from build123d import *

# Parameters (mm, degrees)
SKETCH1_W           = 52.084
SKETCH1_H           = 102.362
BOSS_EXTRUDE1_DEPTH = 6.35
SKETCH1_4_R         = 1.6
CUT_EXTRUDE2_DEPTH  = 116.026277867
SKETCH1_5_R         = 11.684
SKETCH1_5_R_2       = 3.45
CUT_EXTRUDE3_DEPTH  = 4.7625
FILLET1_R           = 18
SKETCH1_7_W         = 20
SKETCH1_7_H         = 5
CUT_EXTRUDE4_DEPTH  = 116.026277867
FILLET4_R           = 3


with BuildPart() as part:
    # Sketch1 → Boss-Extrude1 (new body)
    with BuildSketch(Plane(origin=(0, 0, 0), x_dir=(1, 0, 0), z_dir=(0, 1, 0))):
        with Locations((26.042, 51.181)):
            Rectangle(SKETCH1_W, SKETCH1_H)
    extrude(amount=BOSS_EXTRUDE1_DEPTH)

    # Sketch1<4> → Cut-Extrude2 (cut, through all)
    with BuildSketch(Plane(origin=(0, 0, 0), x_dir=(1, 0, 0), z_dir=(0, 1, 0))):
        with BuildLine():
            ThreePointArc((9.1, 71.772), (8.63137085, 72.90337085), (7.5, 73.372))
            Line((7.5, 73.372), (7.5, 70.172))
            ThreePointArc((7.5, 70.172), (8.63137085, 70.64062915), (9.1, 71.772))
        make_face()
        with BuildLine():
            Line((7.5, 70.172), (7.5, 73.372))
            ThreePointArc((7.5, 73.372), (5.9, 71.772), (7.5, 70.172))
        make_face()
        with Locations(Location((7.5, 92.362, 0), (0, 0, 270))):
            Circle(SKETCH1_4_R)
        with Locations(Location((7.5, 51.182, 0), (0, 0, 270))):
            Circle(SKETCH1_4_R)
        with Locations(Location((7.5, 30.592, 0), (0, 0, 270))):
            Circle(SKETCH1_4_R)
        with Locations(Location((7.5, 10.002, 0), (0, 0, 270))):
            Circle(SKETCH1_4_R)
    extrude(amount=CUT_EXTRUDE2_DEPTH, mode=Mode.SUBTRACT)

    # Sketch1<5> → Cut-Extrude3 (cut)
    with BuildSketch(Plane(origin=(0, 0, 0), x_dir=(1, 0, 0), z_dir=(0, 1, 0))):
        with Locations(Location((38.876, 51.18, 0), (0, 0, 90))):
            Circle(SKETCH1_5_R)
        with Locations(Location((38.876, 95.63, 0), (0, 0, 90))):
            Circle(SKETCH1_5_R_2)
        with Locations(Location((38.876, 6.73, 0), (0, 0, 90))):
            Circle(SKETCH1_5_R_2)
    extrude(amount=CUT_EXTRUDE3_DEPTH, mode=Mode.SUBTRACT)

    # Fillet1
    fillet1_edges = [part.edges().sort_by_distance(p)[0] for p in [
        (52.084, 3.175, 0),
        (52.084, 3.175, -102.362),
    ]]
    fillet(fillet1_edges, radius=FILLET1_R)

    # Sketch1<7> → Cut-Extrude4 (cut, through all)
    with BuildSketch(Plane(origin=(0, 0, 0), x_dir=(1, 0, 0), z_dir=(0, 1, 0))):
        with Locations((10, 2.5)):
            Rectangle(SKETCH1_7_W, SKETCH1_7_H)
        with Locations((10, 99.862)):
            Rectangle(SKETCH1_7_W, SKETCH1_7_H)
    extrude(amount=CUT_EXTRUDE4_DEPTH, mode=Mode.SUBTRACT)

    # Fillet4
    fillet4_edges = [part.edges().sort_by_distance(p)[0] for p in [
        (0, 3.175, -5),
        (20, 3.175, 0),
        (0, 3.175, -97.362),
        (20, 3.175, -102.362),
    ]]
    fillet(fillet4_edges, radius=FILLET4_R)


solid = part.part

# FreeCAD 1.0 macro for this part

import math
import FreeCAD as App
import Part
import Sketcher
Q = App.Units.Quantity


def edges_at(feature, points):
    """Names of the edges that pass closest to the given points."""
    edges = feature.Shape.Edges
    near = lambda p: min(range(len(edges)), key=lambda i: edges[i].distToShape(Part.Vertex(*p))[0])
    return sorted({f"Edge{near(p) + 1}" for p in points})


def add_polygon(sketch, points):
    """Adds a closed chain of lines whose ends are joined by coincident constraints."""
    first, n = sketch.GeometryCount, len(points)
    for a, b in zip(points, points[1:] + points[:1]):
        sketch.addGeometry(Part.LineSegment(App.Vector(*a, 0), App.Vector(*b, 0)), False)
    for i in range(n):
        sketch.addConstraint(Sketcher.Constraint("Coincident", first + i, 2, first + (i + 1) % n, 1))

doc = App.newDocument("Part")
body = doc.addObject("PartDesign::Body", "Body")

sketch1 = body.newObject("Sketcher::SketchObject", "Sketch")
sketch1.AttachmentSupport = (doc.getObject("XZ_Plane"), [""])
sketch1.MapMode = "FlatFace"
add_polygon(sketch1, [(0, -102), (0, 0), (52, 0), (52, -102)])
sketch1.addConstraint([
    Sketcher.Constraint("Vertical", 0),
    Sketcher.Constraint("Horizontal", 1),
    Sketcher.Constraint("Vertical", 2),
    Sketcher.Constraint("Horizontal", 3),
    Sketcher.Constraint("Coincident", 0, 2, -1, 1),
    Sketcher.Constraint("DistanceX", 1, 1, 1, 2, Q("52.084 mm")),
    Sketcher.Constraint("DistanceY", 0, 1, 0, 2, Q("102.362 mm")),
])
pad1 = body.newObject("PartDesign::Pad", "Pad")
pad1.Profile = sketch1
pad1.Length = 6.35
pad1.Reversed = True

sketch2 = body.newObject("Sketcher::SketchObject", "Sketch001")
sketch2.AttachmentSupport = (doc.getObject("XZ_Plane"), [""])
sketch2.MapMode = "FlatFace"
sketch2.addGeometry([
    Part.ArcOfCircle(Part.Circle(App.Vector(7.5, -71.8, 0), App.Vector(0, 0, 1), 1.6), math.radians(-90), math.radians(0)),
    Part.ArcOfCircle(Part.Circle(App.Vector(7.5, -71.8, 0), App.Vector(0, 0, 1), 1.6), math.radians(90), math.radians(270)),
    Part.ArcOfCircle(Part.Circle(App.Vector(7.5, -71.8, 0), App.Vector(0, 0, 1), 1.6), math.radians(0), math.radians(90)),
    Part.Circle(App.Vector(7.5, -92.4, 0), App.Vector(0, 0, 1), 1.6),
    Part.Circle(App.Vector(7.5, -51.2, 0), App.Vector(0, 0, 1), 1.6),
    Part.Circle(App.Vector(7.5, -30.6, 0), App.Vector(0, 0, 1), 1.6),
    Part.Circle(App.Vector(7.5, -10, 0), App.Vector(0, 0, 1), 1.6),
], False)
sketch2.addConstraint([
    Sketcher.Constraint("Tangent", 0, 1, 1, 2),
    Sketcher.Constraint("Tangent", 1, 1, 2, 2),
    Sketcher.Constraint("Tangent", 2, 1, 0, 2),
    Sketcher.Constraint("Equal", 2, 3),
    Sketcher.Constraint("Equal", 3, 4),
    Sketcher.Constraint("Equal", 4, 5),
    Sketcher.Constraint("Equal", 5, 6),
    Sketcher.Constraint("Horizontal", 1, 3, 2, 1),
    Sketcher.Constraint("Vertical", 2, 3, 3, 3),
    Sketcher.Constraint("Vertical", 3, 3, 4, 3),
    Sketcher.Constraint("Vertical", 4, 3, 5, 3),
    Sketcher.Constraint("Vertical", 5, 3, 6, 3),
    Sketcher.Constraint("Vertical", 6, 3, 0, 1),
    Sketcher.Constraint("Vertical", 0, 1, 1, 1),
    Sketcher.Constraint("Diameter", 3, Q("3.2 mm")),
    Sketcher.Constraint("DistanceX", -1, 1, 0, 3, Q("7.5 mm")),
    Sketcher.Constraint("DistanceY", 3, 3, 0, 3, Q("20.59 mm")),
    Sketcher.Constraint("DistanceY", 0, 3, 4, 3, Q("20.59 mm")),
    Sketcher.Constraint("DistanceY", 4, 3, 5, 3, Q("20.59 mm")),
    Sketcher.Constraint("DistanceY", 5, 3, 6, 3, Q("20.59 mm")),
    Sketcher.Constraint("DistanceY", 0, 3, -1, 1, Q("71.772 mm")),
])
pocket1 = body.newObject("PartDesign::Pocket", "Pocket")
pocket1.Profile = sketch2
pocket1.Type = "ThroughAll"

sketch3 = body.newObject("Sketcher::SketchObject", "Sketch002")
sketch3.AttachmentSupport = (doc.getObject("XZ_Plane"), [""])
sketch3.MapMode = "FlatFace"
sketch3.addGeometry([
    Part.Circle(App.Vector(38.9, -51.2, 0), App.Vector(0, 0, 1), 11.7),
    Part.Circle(App.Vector(38.9, -95.6, 0), App.Vector(0, 0, 1), 3.5),
    Part.Circle(App.Vector(38.9, -6.7, 0), App.Vector(0, 0, 1), 3.5),
], False)
sketch3.addConstraint([
    Sketcher.Constraint("Equal", 1, 2),
    Sketcher.Constraint("Vertical", 0, 3, 1, 3),
    Sketcher.Constraint("Vertical", 1, 3, 2, 3),
    Sketcher.Constraint("Diameter", 1, Q("6.9 mm")),
    Sketcher.Constraint("Diameter", 0, Q("23.368 mm")),
    Sketcher.Constraint("DistanceY", 1, 3, 2, 3, Q("88.9 mm")),
    Sketcher.Constraint("DistanceY", 0, 3, -1, 1, Q("51.18 mm")),
    Sketcher.Constraint("DistanceY", 1, 3, -1, 1, Q("95.63 mm")),
    Sketcher.Constraint("DistanceX", -1, 1, 0, 3, Q("38.876 mm")),
])
pocket2 = body.newObject("PartDesign::Pocket", "Pocket001")
pocket2.Profile = sketch3
pocket2.Length = 4.7625
doc.recompute()

fillet = body.newObject("PartDesign::Fillet", "Fillet")
fillet.Base = (pocket2, edges_at(pocket2, [(52.084, 3.175, 0), (52.084, 3.175, -102.362)]))
fillet.Radius = 18

sketch4 = body.newObject("Sketcher::SketchObject", "Sketch003")
sketch4.AttachmentSupport = (doc.getObject("XZ_Plane"), [""])
sketch4.MapMode = "FlatFace"
add_polygon(sketch4, [(0, -5), (0, 0), (20, 0), (20, -5)])
add_polygon(sketch4, [(0, -102), (0, -97), (20, -97), (20, -102)])
sketch4.addConstraint([
    Sketcher.Constraint("Vertical", 0),
    Sketcher.Constraint("Horizontal", 1),
    Sketcher.Constraint("Vertical", 2),
    Sketcher.Constraint("Horizontal", 3),
    Sketcher.Constraint("Vertical", 4),
    Sketcher.Constraint("Horizontal", 5),
    Sketcher.Constraint("Vertical", 6),
    Sketcher.Constraint("Horizontal", 7),
    Sketcher.Constraint("Coincident", 0, 2, -1, 1),
    Sketcher.Constraint("PointOnObject", 4, 2, -2),
    Sketcher.Constraint("Vertical", 2, 2, 5, 2),
    Sketcher.Constraint("Equal", 2, 4),
    Sketcher.Constraint("DistanceX", 1, 1, 1, 2, Q("20 mm")),
    Sketcher.Constraint("DistanceY", 0, 1, 0, 2, Q("5 mm")),
    Sketcher.Constraint("DistanceY", 4, 2, -1, 1, Q("97.362 mm")),
])
pocket3 = body.newObject("PartDesign::Pocket", "Pocket002")
pocket3.Profile = sketch4
pocket3.Type = "ThroughAll"
doc.recompute()

fillet2 = body.newObject("PartDesign::Fillet", "Fillet001")
fillet2.Base = (pocket3, edges_at(pocket3, [
    (0, 3.175, -5),
    (20, 3.175, 0),
    (0, 3.175, -97.362),
    (20, 3.175, -102.362),
]))
fillet2.Radius = 3

doc.recompute()
